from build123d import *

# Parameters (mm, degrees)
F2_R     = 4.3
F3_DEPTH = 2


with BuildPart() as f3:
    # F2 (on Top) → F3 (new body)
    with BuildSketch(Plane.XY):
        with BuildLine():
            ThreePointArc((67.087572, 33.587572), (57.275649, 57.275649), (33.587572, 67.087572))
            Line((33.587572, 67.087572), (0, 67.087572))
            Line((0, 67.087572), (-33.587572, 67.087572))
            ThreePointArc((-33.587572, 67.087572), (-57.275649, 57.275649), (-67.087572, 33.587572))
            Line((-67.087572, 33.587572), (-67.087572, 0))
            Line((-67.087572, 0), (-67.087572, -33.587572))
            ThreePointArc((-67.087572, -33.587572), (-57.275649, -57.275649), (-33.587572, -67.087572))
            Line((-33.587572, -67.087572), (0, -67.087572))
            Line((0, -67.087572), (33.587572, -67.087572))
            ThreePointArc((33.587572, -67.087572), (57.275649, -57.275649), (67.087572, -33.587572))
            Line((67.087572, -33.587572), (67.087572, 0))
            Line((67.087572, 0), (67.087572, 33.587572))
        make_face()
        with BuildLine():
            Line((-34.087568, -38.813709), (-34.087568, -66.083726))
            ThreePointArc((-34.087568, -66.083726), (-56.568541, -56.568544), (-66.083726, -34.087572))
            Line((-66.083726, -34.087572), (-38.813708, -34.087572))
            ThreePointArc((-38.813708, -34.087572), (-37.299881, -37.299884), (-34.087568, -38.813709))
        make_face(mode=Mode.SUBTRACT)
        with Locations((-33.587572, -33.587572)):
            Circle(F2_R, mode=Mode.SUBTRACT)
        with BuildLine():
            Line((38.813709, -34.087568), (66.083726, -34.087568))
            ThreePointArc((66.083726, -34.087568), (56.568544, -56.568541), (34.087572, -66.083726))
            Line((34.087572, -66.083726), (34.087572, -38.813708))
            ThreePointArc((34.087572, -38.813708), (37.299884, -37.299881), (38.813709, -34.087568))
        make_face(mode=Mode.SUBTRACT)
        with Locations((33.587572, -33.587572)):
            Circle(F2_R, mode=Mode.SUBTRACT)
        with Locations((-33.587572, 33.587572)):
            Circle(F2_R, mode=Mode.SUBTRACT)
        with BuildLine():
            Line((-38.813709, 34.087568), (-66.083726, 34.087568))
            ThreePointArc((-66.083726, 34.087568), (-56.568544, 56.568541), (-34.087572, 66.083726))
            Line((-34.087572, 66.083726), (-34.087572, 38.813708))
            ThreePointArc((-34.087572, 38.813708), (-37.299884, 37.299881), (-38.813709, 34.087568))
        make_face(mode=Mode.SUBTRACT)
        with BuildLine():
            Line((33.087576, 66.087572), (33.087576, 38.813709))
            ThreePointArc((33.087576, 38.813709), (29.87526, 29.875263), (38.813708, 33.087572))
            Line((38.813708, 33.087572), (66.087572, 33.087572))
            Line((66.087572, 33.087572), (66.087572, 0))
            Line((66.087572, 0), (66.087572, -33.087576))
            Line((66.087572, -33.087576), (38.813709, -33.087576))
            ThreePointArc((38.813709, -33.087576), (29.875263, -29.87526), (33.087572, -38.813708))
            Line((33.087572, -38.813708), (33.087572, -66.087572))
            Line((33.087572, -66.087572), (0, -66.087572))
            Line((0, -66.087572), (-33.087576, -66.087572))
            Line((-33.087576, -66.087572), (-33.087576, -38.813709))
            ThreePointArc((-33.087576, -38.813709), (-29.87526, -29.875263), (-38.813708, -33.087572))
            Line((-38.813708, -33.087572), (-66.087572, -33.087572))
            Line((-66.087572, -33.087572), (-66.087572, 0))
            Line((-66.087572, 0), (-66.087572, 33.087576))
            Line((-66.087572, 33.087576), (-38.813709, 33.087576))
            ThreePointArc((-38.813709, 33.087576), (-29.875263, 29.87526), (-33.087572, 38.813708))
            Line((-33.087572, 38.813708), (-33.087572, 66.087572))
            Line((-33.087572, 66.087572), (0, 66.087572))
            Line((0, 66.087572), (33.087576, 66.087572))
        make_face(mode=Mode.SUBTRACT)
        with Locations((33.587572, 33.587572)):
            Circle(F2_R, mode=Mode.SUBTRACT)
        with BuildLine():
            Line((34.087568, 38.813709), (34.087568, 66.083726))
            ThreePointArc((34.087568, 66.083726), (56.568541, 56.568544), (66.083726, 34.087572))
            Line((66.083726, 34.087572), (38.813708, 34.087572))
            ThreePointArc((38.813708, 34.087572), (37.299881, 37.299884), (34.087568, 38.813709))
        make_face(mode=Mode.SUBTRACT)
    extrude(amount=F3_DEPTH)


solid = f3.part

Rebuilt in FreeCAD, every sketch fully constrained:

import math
import FreeCAD as App
import Part
import Sketcher
from FreeCAD import Vector

doc = App.newDocument("Part")
body = doc.addObject("PartDesign::Body", "Body")

sketch1 = body.newObject("Sketcher::SketchObject", "Sketch")
sketch1.AttachmentSupport = (doc.getObject("XY_Plane"), [""])
sketch1.MapMode = "FlatFace"
sketch1.addGeometry(Part.ArcOfCircle(Part.Circle(Vector(33.6, 33.6, 0), Vector(0, 0, 1), 33.5), math.radians(0), math.radians(90)), False)
sketch1.addGeometry(Part.LineSegment(Vector(33.6, 67.1, 0), Vector(-33.6, 67.1, 0)), False)
sketch1.addGeometry(Part.ArcOfCircle(Part.Circle(Vector(-33.6, 33.6, 0), Vector(0, 0, 1), 33.5), math.radians(90), math.radians(180)), False)
sketch1.addGeometry(Part.LineSegment(Vector(-67.1, 33.6, 0), Vector(-67.1, -33.6, 0)), False)
sketch1.addGeometry(Part.ArcOfCircle(Part.Circle(Vector(-33.6, -33.6, 0), Vector(0, 0, 1), 33.5), math.radians(-180), math.radians(-90)), False)
sketch1.addGeometry(Part.LineSegment(Vector(-33.6, -67.1, 0), Vector(33.6, -67.1, 0)), False)
sketch1.addGeometry(Part.ArcOfCircle(Part.Circle(Vector(33.6, -33.6, 0), Vector(0, 0, 1), 33.5), math.radians(-90), math.radians(0)), False)
sketch1.addGeometry(Part.LineSegment(Vector(67.1, -33.6, 0), Vector(67.1, 33.6, 0)), False)
sketch1.addGeometry(Part.ArcOfCircle(Part.Circle(Vector(-33.6, -33.6, 0), Vector(0, 0, 1), 5.3), math.radians(-175), math.radians(-95)), False)
sketch1.addGeometry(Part.LineSegment(Vector(-34.1, -38.8, 0), Vector(-34.1, -66.1, 0)), False)
sketch1.addGeometry(Part.ArcOfCircle(Part.Circle(Vector(-33.6, -33.6, 0), Vector(0, 0, 1), 32.5), math.radians(-179), math.radians(-91)), False)
sketch1.addGeometry(Part.LineSegment(Vector(-66.1, -34.1, 0), Vector(-38.8, -34.1, 0)), False)
sketch1.addGeometry(Part.Circle(Vector(-33.6, -33.6, 0), Vector(0, 0, 1), 4.3), False)
sketch1.addGeometry(Part.LineSegment(Vector(-33.1, 66.1, 0), Vector(33.1, 66.1, 0)), False)
sketch1.addGeometry(Part.LineSegment(Vector(33.1, 66.1, 0), Vector(33.1, 38.8, 0)), False)
sketch1.addGeometry(Part.ArcOfCircle(Part.Circle(Vector(33.6, 33.6, 0), Vector(0, 0, 1), 5.2), math.radians(95), math.radians(355)), False)
sketch1.addGeometry(Part.LineSegment(Vector(38.8, 33.1, 0), Vector(66.1, 33.1, 0)), False)
sketch1.addGeometry(Part.LineSegment(Vector(66.1, 33.1, 0), Vector(66.1, -33.1, 0)), False)
sketch1.addGeometry(Part.LineSegment(Vector(66.1, -33.1, 0), Vector(38.8, -33.1, 0)), False)
sketch1.addGeometry(Part.ArcOfCircle(Part.Circle(Vector(33.6, -33.6, 0), Vector(0, 0, 1), 5.2), math.radians(5), math.radians(265)), False)
sketch1.addGeometry(Part.LineSegment(Vector(33.1, -38.8, 0), Vector(33.1, -66.1, 0)), False)
sketch1.addGeometry(Part.LineSegment(Vector(33.1, -66.1, 0), Vector(-33.1, -66.1, 0)), False)
sketch1.addGeometry(Part.LineSegment(Vector(-33.1, -66.1, 0), Vector(-33.1, -38.8, 0)), False)
sketch1.addGeometry(Part.ArcOfCircle(Part.Circle(Vector(-33.6, -33.6, 0), Vector(0, 0, 1), 5.2), math.radians(-85), math.radians(175)), False)
sketch1.addGeometry(Part.LineSegment(Vector(-38.8, -33.1, 0), Vector(-66.1, -33.1, 0)), False)
sketch1.addGeometry(Part.LineSegment(Vector(-66.1, -33.1, 0), Vector(-66.1, 33.1, 0)), False)
sketch1.addGeometry(Part.LineSegment(Vector(-66.1, 33.1, 0), Vector(-38.8, 33.1, 0)), False)
sketch1.addGeometry(Part.ArcOfCircle(Part.Circle(Vector(-33.6, 33.6, 0), Vector(0, 0, 1), 5.2), math.radians(-175), math.radians(85)), False)
sketch1.addGeometry(Part.LineSegment(Vector(-33.1, 38.8, 0), Vector(-33.1, 66.1, 0)), False)
sketch1.addGeometry(Part.ArcOfCircle(Part.Circle(Vector(33.6, -33.6, 0), Vector(0, 0, 1), 5.3), math.radians(-85), math.radians(-5)), False)
sketch1.addGeometry(Part.LineSegment(Vector(38.8, -34.1, 0), Vector(66.1, -34.1, 0)), False)
sketch1.addGeometry(Part.ArcOfCircle(Part.Circle(Vector(33.6, -33.6, 0), Vector(0, 0, 1), 32.5), math.radians(-89), math.radians(-1)), False)
sketch1.addGeometry(Part.LineSegment(Vector(34.1, -66.1, 0), Vector(34.1, -38.8, 0)), False)
sketch1.addGeometry(Part.Circle(Vector(33.6, -33.6, 0), Vector(0, 0, 1), 4.3), False)
sketch1.addGeometry(Part.Circle(Vector(-33.6, 33.6, 0), Vector(0, 0, 1), 4.3), False)
sketch1.addGeometry(Part.ArcOfCircle(Part.Circle(Vector(-33.6, 33.6, 0), Vector(0, 0, 1), 5.3), math.radians(95), math.radians(175)), False)
sketch1.addGeometry(Part.LineSegment(Vector(-38.8, 34.1, 0), Vector(-66.1, 34.1, 0)), False)
sketch1.addGeometry(Part.ArcOfCircle(Part.Circle(Vector(-33.6, 33.6, 0), Vector(0, 0, 1), 32.5), math.radians(91), math.radians(179)), False)
sketch1.addGeometry(Part.LineSegment(Vector(-34.1, 66.1, 0), Vector(-34.1, 38.8, 0)), False)
sketch1.addGeometry(Part.Circle(Vector(33.6, 33.6, 0), Vector(0, 0, 1), 4.3), False)
sketch1.addGeometry(Part.ArcOfCircle(Part.Circle(Vector(33.6, 33.6, 0), Vector(0, 0, 1), 5.3), math.radians(5), math.radians(85)), False)
sketch1.addGeometry(Part.LineSegment(Vector(34.1, 38.8, 0), Vector(34.1, 66.1, 0)), False)
sketch1.addGeometry(Part.ArcOfCircle(Part.Circle(Vector(33.6, 33.6, 0), Vector(0, 0, 1), 32.5), math.radians(1), math.radians(89)), False)
sketch1.addGeometry(Part.LineSegment(Vector(66.1, 34.1, 0), Vector(38.8, 34.1, 0)), False)
sketch1.addConstraint(Sketcher.Constraint("Tangent", 0, 2, 1, 1))
sketch1.addConstraint(Sketcher.Constraint("Tangent", 1, 2, 2, 1))
sketch1.addConstraint(Sketcher.Constraint("Tangent", 2, 2, 3, 1))
sketch1.addConstraint(Sketcher.Constraint("Tangent", 3, 2, 4, 1))
sketch1.addConstraint(Sketcher.Constraint("Tangent", 4, 2, 5, 1))
sketch1.addConstraint(Sketcher.Constraint("Tangent", 5, 2, 6, 1))
sketch1.addConstraint(Sketcher.Constraint("Tangent", 6, 2, 7, 1))
sketch1.addConstraint(Sketcher.Constraint("Tangent", 7, 2, 0, 1))
sketch1.addConstraint(Sketcher.Constraint("Coincident", 8, 2, 9, 1))
sketch1.addConstraint(Sketcher.Constraint("Coincident", 9, 2, 10, 2))
sketch1.addConstraint(Sketcher.Constraint("Coincident", 10, 1, 11, 1))
sketch1.addConstraint(Sketcher.Constraint("Coincident", 11, 2, 8, 1))
sketch1.addConstraint(Sketcher.Constraint("Coincident", 13, 2, 14, 1))
sketch1.addConstraint(Sketcher.Constraint("Coincident", 14, 2, 15, 1))
sketch1.addConstraint(Sketcher.Constraint("Coincident", 15, 2, 16, 1))
sketch1.addConstraint(Sketcher.Constraint("Coincident", 16, 2, 17, 1))
sketch1.addConstraint(Sketcher.Constraint("Coincident", 17, 2, 18, 1))
sketch1.addConstraint(Sketcher.Constraint("Coincident", 18, 2, 19, 1))
sketch1.addConstraint(Sketcher.Constraint("Coincident", 19, 2, 20, 1))
sketch1.addConstraint(Sketcher.Constraint("Coincident", 20, 2, 21, 1))
sketch1.addConstraint(Sketcher.Constraint("Coincident", 21, 2, 22, 1))
sketch1.addConstraint(Sketcher.Constraint("Coincident", 22, 2, 23, 1))
sketch1.addConstraint(Sketcher.Constraint("Coincident", 23, 2, 24, 1))
sketch1.addConstraint(Sketcher.Constraint("Coincident", 24, 2, 25, 1))
sketch1.addConstraint(Sketcher.Constraint("Coincident", 25, 2, 26, 1))
sketch1.addConstraint(Sketcher.Constraint("Coincident", 26, 2, 27, 1))
sketch1.addConstraint(Sketcher.Constraint("Coincident", 27, 2, 28, 1))
sketch1.addConstraint(Sketcher.Constraint("Coincident", 28, 2, 13, 1))
sketch1.addConstraint(Sketcher.Constraint("Coincident", 29, 2, 30, 1))
sketch1.addConstraint(Sketcher.Constraint("Coincident", 30, 2, 31, 2))
sketch1.addConstraint(Sketcher.Constraint("Coincident", 31, 1, 32, 1))
sketch1.addConstraint(Sketcher.Constraint("Coincident", 32, 2, 29, 1))
sketch1.addConstraint(Sketcher.Constraint("Coincident", 35, 2, 36, 1))
sketch1.addConstraint(Sketcher.Constraint("Coincident", 36, 2, 37, 2))
sketch1.addConstraint(Sketcher.Constraint("Coincident", 37, 1, 38, 1))
sketch1.addConstraint(Sketcher.Constraint("Coincident", 38, 2, 35, 1))
sketch1.addConstraint(Sketcher.Constraint("Coincident", 40, 2, 41, 1))
sketch1.addConstraint(Sketcher.Constraint("Coincident", 41, 2, 42, 2))
sketch1.addConstraint(Sketcher.Constraint("Coincident", 42, 1, 43, 1))
sketch1.addConstraint(Sketcher.Constraint("Coincident", 43, 2, 40, 1))
sketch1.addConstraint(Sketcher.Constraint("Horizontal", 1))
sketch1.addConstraint(Sketcher.Constraint("Vertical", 3))
sketch1.addConstraint(Sketcher.Constraint("Horizontal", 5))
sketch1.addConstraint(Sketcher.Constraint("Vertical", 7))
sketch1.addConstraint(Sketcher.Constraint("Vertical", 9))
sketch1.addConstraint(Sketcher.Constraint("Horizontal", 11))
sketch1.addConstraint(Sketcher.Constraint("Horizontal", 13))
sketch1.addConstraint(Sketcher.Constraint("Vertical", 14))
sketch1.addConstraint(Sketcher.Constraint("Horizontal", 16))
sketch1.addConstraint(Sketcher.Constraint("Vertical", 17))
sketch1.addConstraint(Sketcher.Constraint("Horizontal", 18))
sketch1.addConstraint(Sketcher.Constraint("Vertical", 20))
sketch1.addConstraint(Sketcher.Constraint("Horizontal", 21))
sketch1.addConstraint(Sketcher.Constraint("Vertical", 22))
sketch1.addConstraint(Sketcher.Constraint("Horizontal", 24))
sketch1.addConstraint(Sketcher.Constraint("Vertical", 25))
sketch1.addConstraint(Sketcher.Constraint("Horizontal", 26))
sketch1.addConstraint(Sketcher.Constraint("Vertical", 28))
sketch1.addConstraint(Sketcher.Constraint("Horizontal", 30))
sketch1.addConstraint(Sketcher.Constraint("Vertical", 32))
sketch1.addConstraint(Sketcher.Constraint("Horizontal", 36))
sketch1.addConstraint(Sketcher.Constraint("Vertical", 38))
sketch1.addConstraint(Sketcher.Constraint("Vertical", 41))
sketch1.addConstraint(Sketcher.Constraint("Horizontal", 43))
sketch1.addConstraint(Sketcher.Constraint("Coincident", 8, 3, 4, 3))
sketch1.addConstraint(Sketcher.Constraint("Coincident", 10, 3, 4, 3))
sketch1.addConstraint(Sketcher.Constraint("Coincident", 12, 3, 4, 3))
sketch1.addConstraint(Sketcher.Constraint("Coincident", 15, 3, 0, 3))
sketch1.addConstraint(Sketcher.Constraint("Coincident", 19, 3, 6, 3))
sketch1.addConstraint(Sketcher.Constraint("Coincident", 23, 3, 4, 3))
sketch1.addConstraint(Sketcher.Constraint("Coincident", 27, 3, 2, 3))
sketch1.addConstraint(Sketcher.Constraint("Coincident", 29, 3, 6, 3))
sketch1.addConstraint(Sketcher.Constraint("Coincident", 31, 3, 6, 3))
sketch1.addConstraint(Sketcher.Constraint("Coincident", 33, 3, 6, 3))
sketch1.addConstraint(Sketcher.Constraint("Coincident", 34, 3, 2, 3))
sketch1.addConstraint(Sketcher.Constraint("Coincident", 35, 3, 2, 3))
sketch1.addConstraint(Sketcher.Constraint("Coincident", 37, 3, 2, 3))
sketch1.addConstraint(Sketcher.Constraint("Coincident", 39, 3, 0, 3))
sketch1.addConstraint(Sketcher.Constraint("Coincident", 40, 3, 0, 3))
sketch1.addConstraint(Sketcher.Constraint("Coincident", 42, 3, 0, 3))
sketch1.addConstraint(Sketcher.Constraint("Equal", 0, 2))
sketch1.addConstraint(Sketcher.Constraint("Equal", 2, 4))
sketch1.addConstraint(Sketcher.Constraint("Equal", 4, 6))
sketch1.addConstraint(Sketcher.Constraint("Equal", 8, 15))
sketch1.addConstraint(Sketcher.Constraint("Equal", 15, 19))
sketch1.addConstraint(Sketcher.Constraint("Equal", 19, 23))
sketch1.addConstraint(Sketcher.Constraint("Equal", 23, 27))
sketch1.addConstraint(Sketcher.Constraint("Equal", 27, 29))
sketch1.addConstraint(Sketcher.Constraint("Equal", 10, 31))
sketch1.addConstraint(Sketcher.Constraint("Equal", 12, 33))
sketch1.addConstraint(Sketcher.Constraint("Equal", 33, 34))
sketch1.addConstraint(Sketcher.Constraint("Equal", 29, 35))
sketch1.addConstraint(Sketcher.Constraint("Equal", 31, 37))
sketch1.addConstraint(Sketcher.Constraint("Equal", 34, 39))
sketch1.addConstraint(Sketcher.Constraint("Equal", 35, 40))
sketch1.addConstraint(Sketcher.Constraint("Equal", 37, 42))
sketch1.addConstraint(Sketcher.Constraint("Symmetric", 0, 3, 4, 3, -1, 1))
sketch1.addConstraint(Sketcher.Constraint("Symmetric", 13, 2, 21, 2, -1, 1))
sketch1.addConstraint(Sketcher.Constraint("Symmetric", 16, 2, 24, 2, -1, 1))
sketch1.addConstraint(Sketcher.Constraint("Horizontal", 8, 2, 19, 2))
sketch1.addConstraint(Sketcher.Constraint("Horizontal", 19, 2, 22, 2))
sketch1.addConstraint(Sketcher.Constraint("Horizontal", 14, 2, 27, 2))
sketch1.addConstraint(Sketcher.Constraint("Horizontal", 9, 2, 31, 1))
sketch1.addConstraint(Sketcher.Constraint("Horizontal", 27, 2, 38, 2))
sketch1.addConstraint(Sketcher.Constraint("Horizontal", 38, 2, 40, 2))
sketch1.addConstraint(Sketcher.Constraint("Vertical", 15, 2, 18, 2))
sketch1.addConstraint(Sketcher.Constraint("Vertical", 11, 2, 23, 2))
sketch1.addConstraint(Sketcher.Constraint("Vertical", 23, 2, 26, 2))
sketch1.addConstraint(Sketcher.Constraint("Vertical", 18, 2, 29, 2))
sketch1.addConstraint(Sketcher.Constraint("Vertical", 26, 2, 35, 2))
sketch1.addConstraint(Sketcher.Constraint("Vertical", 30, 2, 42, 1))
sketch1.addConstraint(Sketcher.Constraint("Equal", 5, 3))
sketch1.addConstraint(Sketcher.Constraint("Equal", 43, 9))
sketch1.addConstraint(Sketcher.Constraint("Equal", 26, 14))
sketch1.addConstraint(Sketcher.Constraint("Diameter", 12, 8.6))
sketch1.addConstraint(Sketcher.Constraint("Radius", 0, 33.500001))
sketch1.addConstraint(Sketcher.Constraint("Radius", 10, 32.500001))
sketch1.addConstraint(Sketcher.Constraint("Radius", 8, 5.250001))
sketch1.addConstraint(Sketcher.Constraint("DistanceY", 13, 2, 0, 2, 1.0))
sketch1.addConstraint(Sketcher.Constraint("DistanceY", 11, 2, 23, 2, 1.0))
sketch1.addConstraint(Sketcher.Constraint("DistanceX", 13, 1, 13, 2, 66.175148))
pad1 = body.newObject("PartDesign::Pad", "Pad")
pad1.Profile = sketch1
pad1.Length = 2

doc.recompute()
